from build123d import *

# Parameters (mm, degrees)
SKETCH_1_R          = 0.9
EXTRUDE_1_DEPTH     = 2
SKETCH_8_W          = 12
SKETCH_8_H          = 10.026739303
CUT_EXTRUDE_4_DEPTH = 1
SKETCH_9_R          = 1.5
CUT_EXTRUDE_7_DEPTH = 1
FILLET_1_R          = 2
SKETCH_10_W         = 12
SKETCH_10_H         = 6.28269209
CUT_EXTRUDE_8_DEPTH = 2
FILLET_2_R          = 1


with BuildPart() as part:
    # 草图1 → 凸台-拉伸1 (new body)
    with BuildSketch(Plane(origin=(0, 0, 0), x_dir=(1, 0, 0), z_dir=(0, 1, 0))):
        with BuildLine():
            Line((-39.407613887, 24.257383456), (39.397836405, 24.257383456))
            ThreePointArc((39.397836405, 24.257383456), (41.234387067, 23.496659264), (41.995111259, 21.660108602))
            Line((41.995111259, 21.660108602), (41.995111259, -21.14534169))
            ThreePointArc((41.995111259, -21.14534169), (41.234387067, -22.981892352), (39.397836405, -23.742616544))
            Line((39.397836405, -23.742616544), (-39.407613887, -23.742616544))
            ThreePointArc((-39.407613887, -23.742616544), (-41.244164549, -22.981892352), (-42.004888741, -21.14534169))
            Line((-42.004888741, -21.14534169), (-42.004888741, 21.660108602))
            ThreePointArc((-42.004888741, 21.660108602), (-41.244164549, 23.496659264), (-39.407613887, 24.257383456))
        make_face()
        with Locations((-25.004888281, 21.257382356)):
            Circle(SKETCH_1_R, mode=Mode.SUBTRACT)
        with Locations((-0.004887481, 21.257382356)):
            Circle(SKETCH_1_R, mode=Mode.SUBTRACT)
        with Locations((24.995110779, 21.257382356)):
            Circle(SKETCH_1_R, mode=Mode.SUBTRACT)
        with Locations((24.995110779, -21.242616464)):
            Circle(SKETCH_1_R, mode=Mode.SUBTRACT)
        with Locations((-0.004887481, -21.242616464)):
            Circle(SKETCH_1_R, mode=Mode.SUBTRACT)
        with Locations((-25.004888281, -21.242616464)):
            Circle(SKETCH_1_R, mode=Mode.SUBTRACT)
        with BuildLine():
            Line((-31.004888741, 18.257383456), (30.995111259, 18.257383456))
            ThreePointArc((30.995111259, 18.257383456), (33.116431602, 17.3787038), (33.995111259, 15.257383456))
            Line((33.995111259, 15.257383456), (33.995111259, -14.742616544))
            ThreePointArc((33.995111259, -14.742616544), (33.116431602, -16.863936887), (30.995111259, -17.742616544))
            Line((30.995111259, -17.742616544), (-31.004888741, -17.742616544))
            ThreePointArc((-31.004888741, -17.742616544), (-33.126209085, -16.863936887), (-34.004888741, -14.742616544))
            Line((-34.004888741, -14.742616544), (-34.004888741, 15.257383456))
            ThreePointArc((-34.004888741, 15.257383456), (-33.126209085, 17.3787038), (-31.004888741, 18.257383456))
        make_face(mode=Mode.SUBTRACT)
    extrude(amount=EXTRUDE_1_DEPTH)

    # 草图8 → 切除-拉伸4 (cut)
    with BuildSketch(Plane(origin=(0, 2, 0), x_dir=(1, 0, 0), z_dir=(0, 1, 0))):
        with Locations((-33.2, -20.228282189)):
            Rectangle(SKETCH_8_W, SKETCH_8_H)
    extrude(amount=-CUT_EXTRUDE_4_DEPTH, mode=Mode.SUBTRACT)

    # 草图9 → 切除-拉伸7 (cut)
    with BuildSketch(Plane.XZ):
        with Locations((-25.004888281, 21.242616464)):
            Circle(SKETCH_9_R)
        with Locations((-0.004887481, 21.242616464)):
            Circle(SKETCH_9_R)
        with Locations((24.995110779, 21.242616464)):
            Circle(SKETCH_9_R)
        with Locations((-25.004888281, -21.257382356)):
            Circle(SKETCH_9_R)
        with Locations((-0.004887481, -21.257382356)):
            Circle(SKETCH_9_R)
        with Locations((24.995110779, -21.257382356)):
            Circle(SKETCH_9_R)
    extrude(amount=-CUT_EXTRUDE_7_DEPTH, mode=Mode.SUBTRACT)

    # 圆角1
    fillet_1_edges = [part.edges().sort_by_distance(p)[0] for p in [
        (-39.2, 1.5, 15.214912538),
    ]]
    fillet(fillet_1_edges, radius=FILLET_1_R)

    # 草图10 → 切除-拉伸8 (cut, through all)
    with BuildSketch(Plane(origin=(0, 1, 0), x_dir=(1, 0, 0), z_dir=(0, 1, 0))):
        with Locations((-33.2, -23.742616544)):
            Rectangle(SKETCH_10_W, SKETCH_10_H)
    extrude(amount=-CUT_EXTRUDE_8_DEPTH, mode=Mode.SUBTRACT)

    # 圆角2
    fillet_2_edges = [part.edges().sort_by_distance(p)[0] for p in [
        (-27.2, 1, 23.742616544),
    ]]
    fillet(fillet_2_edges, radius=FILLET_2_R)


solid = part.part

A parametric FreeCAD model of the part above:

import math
import FreeCAD as App
import Part
import Sketcher

V = App.Vector


def edges_at(feature, points):
    """Names of the edges that pass closest to the given points."""
    edges = feature.Shape.Edges
    near = lambda p: min(range(len(edges)), key=lambda i: edges[i].distToShape(Part.Vertex(*p))[0])
    return sorted({f"Edge{near(p) + 1}" for p in points})

doc = App.newDocument("Part")
body = doc.addObject("PartDesign::Body", "Body")

# Sketch on XZ plane
sketch1 = body.newObject("Sketcher::SketchObject", "Sketch")
sketch1.AttachmentSupport = (doc.getObject("XZ_Plane"), [""])
sketch1.MapMode = "FlatFace"
sketch1.addGeometry([
    Part.LineSegment(V(39.397836, -24.257383, 0), V(-39.407614, -24.257383, 0)),  # 0
    Part.ArcOfCircle(Part.Circle(V(-39.407614, -21.660109, 0), V(0, 0, 1), 2.597275), math.radians(180), math.radians(270)),  # 1
    Part.LineSegment(V(-42.004889, -21.660109, 0), V(-42.004889, 21.145342, 0)),  # 2
    Part.ArcOfCircle(Part.Circle(V(-39.407614, 21.145342, 0), V(0, 0, 1), 2.597275), math.radians(90), math.radians(180)),  # 3
    Part.LineSegment(V(-39.407614, 23.742617, 0), V(39.397836, 23.742617, 0)),  # 4
    Part.ArcOfCircle(Part.Circle(V(39.397836, 21.145342, 0), V(0, 0, 1), 2.597275), math.radians(0), math.radians(90)),  # 5
    Part.LineSegment(V(41.995111, 21.145342, 0), V(41.995111, -21.660109, 0)),  # 6
    Part.ArcOfCircle(Part.Circle(V(39.397836, -21.660109, 0), V(0, 0, 1), 2.597275), math.radians(-90), math.radians(0)),  # 7
    Part.Circle(V(24.995111, 21.242616, 0), V(0, 0, 1), 0.9),  # 8
    Part.Circle(V(-0.004887, 21.242616, 0), V(0, 0, 1), 0.9),  # 9
    Part.Circle(V(-25.004888, 21.242616, 0), V(0, 0, 1), 0.9),  # 10
    Part.Circle(V(24.995111, -21.257382, 0), V(0, 0, 1), 0.9),  # 11
    Part.Circle(V(-0.004887, -21.257382, 0), V(0, 0, 1), 0.9),  # 12
    Part.LineSegment(V(-31.004889, -18.257383, 0), V(30.995111, -18.257383, 0)),  # 13
    Part.ArcOfCircle(Part.Circle(V(30.995111, -15.257383, 0), V(0, 0, 1), 3), math.radians(-90), math.radians(0)),  # 14
    Part.LineSegment(V(33.995111, -15.257383, 0), V(33.995111, 14.742617, 0)),  # 15
    Part.ArcOfCircle(Part.Circle(V(30.995111, 14.742617, 0), V(0, 0, 1), 3), math.radians(0), math.radians(90)),  # 16
    Part.LineSegment(V(30.995111, 17.742617, 0), V(-31.004889, 17.742617, 0)),  # 17
    Part.ArcOfCircle(Part.Circle(V(-31.004889, 14.742617, 0), V(0, 0, 1), 3), math.radians(90), math.radians(180)),  # 18
    Part.LineSegment(V(-34.004889, 14.742617, 0), V(-34.004889, -15.257383, 0)),  # 19
    Part.ArcOfCircle(Part.Circle(V(-31.004889, -15.257383, 0), V(0, 0, 1), 3), math.radians(180), math.radians(270)),  # 20
    Part.Circle(V(-25.004888, -21.257382, 0), V(0, 0, 1), 0.9),  # 21
], False)
sketch1.addConstraint([
    Sketcher.Constraint("Tangent", 0, 2, 1, 2),
    Sketcher.Constraint("Tangent", 1, 1, 2, 1),
    Sketcher.Constraint("Tangent", 2, 2, 3, 2),
    Sketcher.Constraint("Tangent", 3, 1, 4, 1),
    Sketcher.Constraint("Tangent", 4, 2, 5, 2),
    Sketcher.Constraint("Tangent", 5, 1, 6, 1),
    Sketcher.Constraint("Tangent", 6, 2, 7, 2),
    Sketcher.Constraint("Tangent", 7, 1, 0, 1),
    Sketcher.Constraint("Tangent", 13, 2, 14, 1),
    Sketcher.Constraint("Tangent", 14, 2, 15, 1),
    Sketcher.Constraint("Tangent", 15, 2, 16, 1),
    Sketcher.Constraint("Tangent", 16, 2, 17, 1),
    Sketcher.Constraint("Tangent", 17, 2, 18, 1),
    Sketcher.Constraint("Tangent", 18, 2, 19, 1),
    Sketcher.Constraint("Tangent", 19, 2, 20, 1),
    Sketcher.Constraint("Tangent", 20, 2, 13, 1),
    Sketcher.Constraint("Horizontal", 0),
    Sketcher.Constraint("Vertical", 2),
    Sketcher.Constraint("Horizontal", 4),
    Sketcher.Constraint("Vertical", 6),
    Sketcher.Constraint("Horizontal", 13),
    Sketcher.Constraint("Vertical", 15),
    Sketcher.Constraint("Horizontal", 17),
    Sketcher.Constraint("Vertical", 19),
    Sketcher.Constraint("Equal", 1, 3),
    Sketcher.Constraint("Equal", 3, 5),
    Sketcher.Constraint("Equal", 5, 7),
    Sketcher.Constraint("Equal", 8, 9),
    Sketcher.Constraint("Equal", 9, 10),
    Sketcher.Constraint("Equal", 10, 11),
    Sketcher.Constraint("Equal", 11, 12),
    Sketcher.Constraint("Equal", 14, 16),
    Sketcher.Constraint("Equal", 16, 18),
    Sketcher.Constraint("Equal", 18, 20),
    Sketcher.Constraint("Equal", 12, 21),
    Sketcher.Constraint("Horizontal", 8, 3, 9, 3),
    Sketcher.Constraint("Horizontal", 9, 3, 10, 3),
    Sketcher.Constraint("Horizontal", 11, 3, 12, 3),
    Sketcher.Constraint("Horizontal", 12, 3, 21, 3),
    Sketcher.Constraint("Vertical", 8, 3, 11, 3),
    Sketcher.Constraint("Vertical", 9, 3, 12, 3),
    Sketcher.Constraint("Vertical", 10, 3, 21, 3),
    Sketcher.Constraint("Radius", 14, 3.0),
    Sketcher.Constraint("Diameter", 8, 1.8),
    Sketcher.Constraint("DistanceX", 13, 1, 13, 2, 62.0),
    Sketcher.Constraint("DistanceY", 15, 1, 15, 2, 30.0),
    Sketcher.Constraint("DistanceX", 9, 3, 8, 3, 24.999998),
    Sketcher.Constraint("DistanceX", 10, 3, 9, 3, 25.000001),
    Sketcher.Constraint("DistanceX", 11, 3, 14, 3, 6.0),
    Sketcher.Constraint("DistanceY", 11, 3, 14, 3, 5.999999),
    Sketcher.Constraint("DistanceY", 0, 2, 20, 3, 9.0),
    Sketcher.Constraint("DistanceX", 1, 1, 20, 3, 11.0),
    Sketcher.Constraint("DistanceY", 18, 3, 3, 1, 9.0),
    Sketcher.Constraint("DistanceX", 16, 3, 5, 1, 11.0),
    Sketcher.Constraint("DistanceY", 11, 3, 8, 3, 42.499999),
    Sketcher.Constraint("Radius", 1, 2.597275),
    Sketcher.Constraint("DistanceY", 1, 3, -1, 1, 21.660109),
    Sketcher.Constraint("DistanceX", -1, 1, 8, 3, 24.995111),
])
pad1 = body.newObject("PartDesign::Pad", "Pad")
pad1.Profile = sketch1
pad1.Length = 2
pad1.Reversed = True

# Sketch on XZ plane
sketch2 = body.newObject("Sketcher::SketchObject", "Sketch001")
sketch2.AttachmentSupport = (doc.getObject("XZ_Plane"), [""])
sketch2.MapMode = "FlatFace"
sketch2.AttachmentOffset = App.Placement(V(0, 0, -2), App.Rotation())
sketch2.addGeometry([
    Part.LineSegment(V(-39.2, 15.214913, 0), V(-39.2, 25.241652, 0)),
    Part.LineSegment(V(-39.2, 25.241652, 0), V(-27.2, 25.241652, 0)),
    Part.LineSegment(V(-27.2, 25.241652, 0), V(-27.2, 15.214913, 0)),
    Part.LineSegment(V(-27.2, 15.214913, 0), V(-39.2, 15.214913, 0)),
], False)
sketch2.addConstraint([
    Sketcher.Constraint("Coincident", 0, 2, 1, 1),
    Sketcher.Constraint("Coincident", 1, 2, 2, 1),
    Sketcher.Constraint("Coincident", 2, 2, 3, 1),
    Sketcher.Constraint("Coincident", 3, 2, 0, 1),
    Sketcher.Constraint("Vertical", 0),
    Sketcher.Constraint("Horizontal", 1),
    Sketcher.Constraint("Vertical", 2),
    Sketcher.Constraint("Horizontal", 3),
    Sketcher.Constraint("DistanceX", 1, 1, 1, 2, 12.0),
    Sketcher.Constraint("DistanceX", 0, 2, -1, 1, 39.2),
    Sketcher.Constraint("DistanceY", 0, 1, 0, 2, 10.026739),
    Sketcher.Constraint("DistanceY", -1, 1, 0, 2, 25.241652),
])
pocket1 = body.newObject("PartDesign::Pocket", "Pocket")
pocket1.Profile = sketch2
pocket1.Length = 1
pocket1.Reversed = True

# Sketch on XZ plane
sketch3 = body.newObject("Sketcher::SketchObject", "Sketch002")
sketch3.AttachmentSupport = (doc.getObject("XZ_Plane"), [""])
sketch3.MapMode = "FlatFace"
sketch3.addGeometry([
    Part.Circle(V(-25.004888, 21.242616, 0), V(0, 0, 1), 1.5),  # 0
    Part.Circle(V(-0.004887, 21.242616, 0), V(0, 0, 1), 1.5),  # 1
    Part.Circle(V(24.995111, 21.242616, 0), V(0, 0, 1), 1.5),  # 2
    Part.Circle(V(-25.004888, -21.257382, 0), V(0, 0, 1), 1.5),  # 3
    Part.Circle(V(-0.004887, -21.257382, 0), V(0, 0, 1), 1.5),  # 4
    Part.Circle(V(24.995111, -21.257382, 0), V(0, 0, 1), 1.5),  # 5
], False)
sketch3.addConstraint([
    Sketcher.Constraint("Equal", 0, 1),
    Sketcher.Constraint("Equal", 1, 2),
    Sketcher.Constraint("Equal", 2, 3),
    Sketcher.Constraint("Equal", 3, 4),
    Sketcher.Constraint("Equal", 4, 5),
    Sketcher.Constraint("Horizontal", 0, 3, 1, 3),
    Sketcher.Constraint("Horizontal", 1, 3, 2, 3),
    Sketcher.Constraint("Horizontal", 3, 3, 4, 3),
    Sketcher.Constraint("Horizontal", 4, 3, 5, 3),
    Sketcher.Constraint("Vertical", 0, 3, 3, 3),
    Sketcher.Constraint("Vertical", 1, 3, 4, 3),
    Sketcher.Constraint("Vertical", 2, 3, 5, 3),
    Sketcher.Constraint("Diameter", 0, 3.0),
    Sketcher.Constraint("DistanceX", 0, 3, 1, 3, 25.000001),
    Sketcher.Constraint("DistanceX", 1, 3, 2, 3, 24.999998),
    Sketcher.Constraint("DistanceY", 3, 3, 0, 3, 42.499999),
    Sketcher.Constraint("DistanceX", 0, 3, -1, 1, 25.004888),
    Sketcher.Constraint("DistanceY", -1, 1, 0, 3, 21.242616),
])
pocket2 = body.newObject("PartDesign::Pocket", "Pocket001")
pocket2.Profile = sketch3
pocket2.Length = 1
doc.recompute()

fillet = body.newObject("PartDesign::Fillet", "Fillet")
fillet.Base = (pocket2, edges_at(pocket2, [(-39.2, 1.5, 15.215)]))
fillet.Radius = 2

# Sketch on XZ plane
sketch4 = body.newObject("Sketcher::SketchObject", "Sketch003")
sketch4.AttachmentSupport = (doc.getObject("XZ_Plane"), [""])
sketch4.MapMode = "FlatFace"
sketch4.AttachmentOffset = App.Placement(V(0, 0, -1), App.Rotation())
sketch4.addGeometry([
    Part.LineSegment(V(-39.2, 20.60127, 0), V(-39.2, 26.883963, 0)),
    Part.LineSegment(V(-39.2, 26.883963, 0), V(-27.2, 26.883963, 0)),
    Part.LineSegment(V(-27.2, 26.883963, 0), V(-27.2, 20.60127, 0)),
    Part.LineSegment(V(-27.2, 20.60127, 0), V(-39.2, 20.60127, 0)),
], False)
sketch4.addConstraint([
    Sketcher.Constraint("Coincident", 0, 2, 1, 1),
    Sketcher.Constraint("Coincident", 1, 2, 2, 1),
    Sketcher.Constraint("Coincident", 2, 2, 3, 1),
    Sketcher.Constraint("Coincident", 3, 2, 0, 1),
    Sketcher.Constraint("Vertical", 0),
    Sketcher.Constraint("Horizontal", 1),
    Sketcher.Constraint("Vertical", 2),
    Sketcher.Constraint("Horizontal", 3),
    Sketcher.Constraint("DistanceX", 1, 1, 1, 2, 12.0),
    Sketcher.Constraint("DistanceX", 0, 2, -1, 1, 39.2),
    Sketcher.Constraint("DistanceY", 0, 1, 0, 2, 6.282692),
    Sketcher.Constraint("DistanceY", -1, 1, 2, 2, 20.60127),
])
pocket3 = body.newObject("PartDesign::Pocket", "Pocket002")
pocket3.Profile = sketch4
pocket3.Type = "ThroughAll"
pocket3.Reversed = True
doc.recompute()

fillet2 = body.newObject("PartDesign::Fillet", "Fillet001")
fillet2.Base = (pocket3, edges_at(pocket3, [(-27.2, 1, 23.743)]))
fillet2.Radius = 1

doc.recompute()
